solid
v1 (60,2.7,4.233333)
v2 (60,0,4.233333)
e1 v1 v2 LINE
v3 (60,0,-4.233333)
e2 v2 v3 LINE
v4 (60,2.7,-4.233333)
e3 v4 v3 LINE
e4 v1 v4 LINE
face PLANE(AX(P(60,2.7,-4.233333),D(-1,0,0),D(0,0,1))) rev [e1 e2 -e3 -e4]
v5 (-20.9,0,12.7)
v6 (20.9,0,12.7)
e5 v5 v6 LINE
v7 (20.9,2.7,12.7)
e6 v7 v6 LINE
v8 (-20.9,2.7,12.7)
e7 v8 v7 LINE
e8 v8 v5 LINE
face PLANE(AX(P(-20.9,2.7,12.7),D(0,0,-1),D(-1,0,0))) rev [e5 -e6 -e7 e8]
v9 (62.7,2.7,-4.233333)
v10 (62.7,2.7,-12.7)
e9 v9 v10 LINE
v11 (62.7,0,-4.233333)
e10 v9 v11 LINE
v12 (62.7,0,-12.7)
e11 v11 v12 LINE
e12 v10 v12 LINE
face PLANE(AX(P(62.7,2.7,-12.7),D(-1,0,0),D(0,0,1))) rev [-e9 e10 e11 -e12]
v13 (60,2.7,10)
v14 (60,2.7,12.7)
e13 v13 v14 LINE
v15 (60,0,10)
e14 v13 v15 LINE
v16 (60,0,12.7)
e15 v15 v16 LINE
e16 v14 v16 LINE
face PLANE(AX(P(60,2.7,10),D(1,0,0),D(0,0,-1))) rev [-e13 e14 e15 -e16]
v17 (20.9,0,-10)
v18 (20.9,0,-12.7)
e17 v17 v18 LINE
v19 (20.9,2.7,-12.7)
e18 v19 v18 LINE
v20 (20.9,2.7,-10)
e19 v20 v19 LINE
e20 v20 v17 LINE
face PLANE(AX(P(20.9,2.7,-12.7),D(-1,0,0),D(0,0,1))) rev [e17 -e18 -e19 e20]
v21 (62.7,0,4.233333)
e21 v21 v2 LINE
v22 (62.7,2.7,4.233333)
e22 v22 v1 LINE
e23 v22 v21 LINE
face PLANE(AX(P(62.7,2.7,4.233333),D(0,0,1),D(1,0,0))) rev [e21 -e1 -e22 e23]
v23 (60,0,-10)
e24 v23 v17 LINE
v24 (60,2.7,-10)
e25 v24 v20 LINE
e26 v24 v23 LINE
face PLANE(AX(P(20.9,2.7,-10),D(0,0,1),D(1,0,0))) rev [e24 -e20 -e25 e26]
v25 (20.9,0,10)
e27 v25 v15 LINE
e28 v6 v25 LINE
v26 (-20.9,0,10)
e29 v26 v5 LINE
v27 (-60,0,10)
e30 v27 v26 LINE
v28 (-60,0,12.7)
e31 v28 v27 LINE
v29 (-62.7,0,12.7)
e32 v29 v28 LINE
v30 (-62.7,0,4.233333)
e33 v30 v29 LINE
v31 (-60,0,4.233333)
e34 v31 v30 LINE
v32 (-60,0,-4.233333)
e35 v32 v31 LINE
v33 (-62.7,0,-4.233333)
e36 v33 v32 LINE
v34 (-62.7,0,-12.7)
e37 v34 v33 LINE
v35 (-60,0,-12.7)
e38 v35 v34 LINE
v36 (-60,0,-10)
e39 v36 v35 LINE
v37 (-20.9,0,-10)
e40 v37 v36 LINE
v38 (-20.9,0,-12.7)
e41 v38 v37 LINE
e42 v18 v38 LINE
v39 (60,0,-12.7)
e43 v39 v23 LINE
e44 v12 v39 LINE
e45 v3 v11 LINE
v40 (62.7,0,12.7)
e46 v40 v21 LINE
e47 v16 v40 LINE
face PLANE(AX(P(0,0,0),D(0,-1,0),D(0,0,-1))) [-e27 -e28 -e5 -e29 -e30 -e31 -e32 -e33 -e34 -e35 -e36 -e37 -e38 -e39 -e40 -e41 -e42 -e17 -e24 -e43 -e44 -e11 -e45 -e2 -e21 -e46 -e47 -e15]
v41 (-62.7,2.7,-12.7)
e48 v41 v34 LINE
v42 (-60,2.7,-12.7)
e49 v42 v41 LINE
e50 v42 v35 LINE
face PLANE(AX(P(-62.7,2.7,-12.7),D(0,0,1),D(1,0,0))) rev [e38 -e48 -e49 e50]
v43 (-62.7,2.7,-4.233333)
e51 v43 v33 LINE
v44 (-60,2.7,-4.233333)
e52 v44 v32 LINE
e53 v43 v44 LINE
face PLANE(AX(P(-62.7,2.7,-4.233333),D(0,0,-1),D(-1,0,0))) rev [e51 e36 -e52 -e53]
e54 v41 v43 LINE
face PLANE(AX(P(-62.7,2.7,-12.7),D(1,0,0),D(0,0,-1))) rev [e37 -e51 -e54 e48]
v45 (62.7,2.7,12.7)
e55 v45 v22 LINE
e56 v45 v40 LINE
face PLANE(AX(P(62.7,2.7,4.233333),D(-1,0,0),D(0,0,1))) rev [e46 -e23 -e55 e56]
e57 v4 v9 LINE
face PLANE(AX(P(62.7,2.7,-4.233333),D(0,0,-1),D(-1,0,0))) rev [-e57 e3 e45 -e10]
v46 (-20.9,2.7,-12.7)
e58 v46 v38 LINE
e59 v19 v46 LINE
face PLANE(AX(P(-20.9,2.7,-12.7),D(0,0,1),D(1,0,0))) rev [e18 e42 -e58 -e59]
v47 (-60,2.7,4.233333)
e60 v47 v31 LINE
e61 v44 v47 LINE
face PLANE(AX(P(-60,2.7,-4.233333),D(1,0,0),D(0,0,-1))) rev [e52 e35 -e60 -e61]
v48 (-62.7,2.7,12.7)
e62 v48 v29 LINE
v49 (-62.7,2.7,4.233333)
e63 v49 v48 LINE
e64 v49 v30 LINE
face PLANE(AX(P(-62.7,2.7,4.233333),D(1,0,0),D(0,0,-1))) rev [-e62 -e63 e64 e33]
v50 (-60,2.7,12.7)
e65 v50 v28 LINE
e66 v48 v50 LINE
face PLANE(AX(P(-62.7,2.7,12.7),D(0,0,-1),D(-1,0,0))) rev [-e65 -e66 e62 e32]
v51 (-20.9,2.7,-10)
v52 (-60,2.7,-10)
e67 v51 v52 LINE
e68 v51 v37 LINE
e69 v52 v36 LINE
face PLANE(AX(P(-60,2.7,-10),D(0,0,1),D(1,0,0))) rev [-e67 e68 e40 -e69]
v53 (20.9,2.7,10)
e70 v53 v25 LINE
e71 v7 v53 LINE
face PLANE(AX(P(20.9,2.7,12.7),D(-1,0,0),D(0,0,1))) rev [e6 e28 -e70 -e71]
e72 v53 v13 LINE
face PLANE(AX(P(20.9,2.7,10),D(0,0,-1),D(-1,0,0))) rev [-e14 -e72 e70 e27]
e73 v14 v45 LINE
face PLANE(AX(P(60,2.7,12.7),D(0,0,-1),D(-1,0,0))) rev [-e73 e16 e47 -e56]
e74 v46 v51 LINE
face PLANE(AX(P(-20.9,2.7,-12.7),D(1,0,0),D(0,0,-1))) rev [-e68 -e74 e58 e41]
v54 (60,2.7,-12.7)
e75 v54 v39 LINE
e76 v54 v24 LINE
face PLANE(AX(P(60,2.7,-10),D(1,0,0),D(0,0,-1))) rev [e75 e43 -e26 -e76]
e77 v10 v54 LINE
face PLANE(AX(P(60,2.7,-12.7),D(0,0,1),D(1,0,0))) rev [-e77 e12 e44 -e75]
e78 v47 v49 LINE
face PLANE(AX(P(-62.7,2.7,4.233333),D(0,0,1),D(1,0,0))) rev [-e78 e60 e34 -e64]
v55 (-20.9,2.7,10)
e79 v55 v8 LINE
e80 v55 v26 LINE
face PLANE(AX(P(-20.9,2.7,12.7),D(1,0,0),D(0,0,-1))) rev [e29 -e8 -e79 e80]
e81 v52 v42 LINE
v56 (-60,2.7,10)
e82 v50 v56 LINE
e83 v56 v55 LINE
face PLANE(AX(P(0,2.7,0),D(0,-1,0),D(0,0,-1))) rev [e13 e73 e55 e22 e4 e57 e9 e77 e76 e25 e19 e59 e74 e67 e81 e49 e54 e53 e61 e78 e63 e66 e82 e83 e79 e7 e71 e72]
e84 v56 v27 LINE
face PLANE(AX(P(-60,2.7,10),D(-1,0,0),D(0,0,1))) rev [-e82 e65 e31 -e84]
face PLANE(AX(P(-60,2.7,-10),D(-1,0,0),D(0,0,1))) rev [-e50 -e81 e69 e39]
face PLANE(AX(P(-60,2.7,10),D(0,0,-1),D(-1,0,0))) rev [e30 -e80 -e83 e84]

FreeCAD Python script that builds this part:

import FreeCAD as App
import Part
import Sketcher
Q = App.Units.Quantity


def add_polygon(sketch, points):
    """Adds a closed chain of lines whose ends are joined by coincident constraints."""
    first, n = sketch.GeometryCount, len(points)
    for a, b in zip(points, points[1:] + points[:1]):
        sketch.addGeometry(Part.LineSegment(App.Vector(*a, 0), App.Vector(*b, 0)), False)
    for i in range(n):
        sketch.addConstraint(Sketcher.Constraint("Coincident", first + i, 2, first + (i + 1) % n, 1))

doc = App.newDocument("Part")
body = doc.addObject("PartDesign::Body", "Body")

sketch1 = doc.addObject("Sketcher::SketchObject", "Sketch")
body.addObject(sketch1)
sketch1.AttachmentSupport = (doc.XZ_Plane, [""])
sketch1.MapMode = "FlatFace"
add_polygon(sketch1, [(-60, -12.7), (-62.7, -12.7), (-62.7, -4.2), (-60, -4.2), (-60, 4.2), (-62.7, 4.2), (-62.7, 12.7), (-60, 12.7), (-60, 10), (-20.9, 10), (-20.9, 12.7), (20.9, 12.7), (20.9, 10), (60, 10), (60, 12.7), (62.7, 12.7), (62.7, 4.2), (60, 4.2), (60, -4.2), (62.7, -4.2), (62.7, -12.7), (60, -12.7), (60, -10), (20.9, -10), (20.9, -12.7), (-20.9, -12.7), (-20.9, -10), (-60, -10)])
sketch1.addConstraint(Sketcher.Constraint("Horizontal", 0))
sketch1.addConstraint(Sketcher.Constraint("Vertical", 1))
sketch1.addConstraint(Sketcher.Constraint("Horizontal", 2))
sketch1.addConstraint(Sketcher.Constraint("Vertical", 3))
sketch1.addConstraint(Sketcher.Constraint("Horizontal", 4))
sketch1.addConstraint(Sketcher.Constraint("Vertical", 5))
sketch1.addConstraint(Sketcher.Constraint("Horizontal", 6))
sketch1.addConstraint(Sketcher.Constraint("Vertical", 7))
sketch1.addConstraint(Sketcher.Constraint("Horizontal", 8))
sketch1.addConstraint(Sketcher.Constraint("Vertical", 9))
sketch1.addConstraint(Sketcher.Constraint("Horizontal", 10))
sketch1.addConstraint(Sketcher.Constraint("Vertical", 11))
sketch1.addConstraint(Sketcher.Constraint("Horizontal", 12))
sketch1.addConstraint(Sketcher.Constraint("Vertical", 13))
sketch1.addConstraint(Sketcher.Constraint("Horizontal", 14))
sketch1.addConstraint(Sketcher.Constraint("Vertical", 15))
sketch1.addConstraint(Sketcher.Constraint("Horizontal", 16))
sketch1.addConstraint(Sketcher.Constraint("Vertical", 17))
sketch1.addConstraint(Sketcher.Constraint("Horizontal", 18))
sketch1.addConstraint(Sketcher.Constraint("Vertical", 19))
sketch1.addConstraint(Sketcher.Constraint("Horizontal", 20))
sketch1.addConstraint(Sketcher.Constraint("Vertical", 21))
sketch1.addConstraint(Sketcher.Constraint("Horizontal", 22))
sketch1.addConstraint(Sketcher.Constraint("Vertical", 23))
sketch1.addConstraint(Sketcher.Constraint("Horizontal", 24))
sketch1.addConstraint(Sketcher.Constraint("Vertical", 25))
sketch1.addConstraint(Sketcher.Constraint("Horizontal", 26))
sketch1.addConstraint(Sketcher.Constraint("Vertical", 27))
sketch1.addConstraint(Sketcher.Constraint("Symmetric", 0, 2, 14, 2, -1, 1))
sketch1.addConstraint(Sketcher.Constraint("Symmetric", 2, 2, 16, 2, -1, 1))
sketch1.addConstraint(Sketcher.Constraint("Symmetric", 4, 2, 18, 2, -1, 1))
sketch1.addConstraint(Sketcher.Constraint("Symmetric", 6, 2, 20, 2, -1, 1))
sketch1.addConstraint(Sketcher.Constraint("Symmetric", 8, 2, 22, 2, -1, 1))
sketch1.addConstraint(Sketcher.Constraint("Symmetric", 10, 2, 24, 2, -1, 1))
sketch1.addConstraint(Sketcher.Constraint("Symmetric", 12, 2, 26, 2, -1, 1))
sketch1.addConstraint(Sketcher.Constraint("Symmetric", 8, 2, 11, 2, -2))
sketch1.addConstraint(Sketcher.Constraint("Symmetric", 6, 2, 13, 2, -2))
sketch1.addConstraint(Sketcher.Constraint("Symmetric", 4, 2, 15, 2, -2))
sketch1.addConstraint(Sketcher.Constraint("Horizontal", 6, 2, 9, 2))
sketch1.addConstraint(Sketcher.Constraint("Vertical", 3, 2, 6, 2))
sketch1.addConstraint(Sketcher.Constraint("Equal", 1, 3))
sketch1.addConstraint(Sketcher.Constraint("Equal", 20, 7))
sketch1.addConstraint(Sketcher.Constraint("DistanceX", 0, 2, 0, 1, Q("2.7 mm")))
sketch1.addConstraint(Sketcher.Constraint("DistanceX", 8, 1, 8, 2, Q("39.1 mm")))
sketch1.addConstraint(Sketcher.Constraint("DistanceX", 10, 1, 10, 2, Q("41.8 mm")))
sketch1.addConstraint(Sketcher.Constraint("DistanceY", -1, 1, 7, 2, Q("10 mm")))
pad1 = doc.addObject("PartDesign::Pad", "Pad")
body.addObject(pad1)
pad1.Profile = sketch1
pad1.Length = 2.7
pad1.Reversed = True

doc.recompute()
